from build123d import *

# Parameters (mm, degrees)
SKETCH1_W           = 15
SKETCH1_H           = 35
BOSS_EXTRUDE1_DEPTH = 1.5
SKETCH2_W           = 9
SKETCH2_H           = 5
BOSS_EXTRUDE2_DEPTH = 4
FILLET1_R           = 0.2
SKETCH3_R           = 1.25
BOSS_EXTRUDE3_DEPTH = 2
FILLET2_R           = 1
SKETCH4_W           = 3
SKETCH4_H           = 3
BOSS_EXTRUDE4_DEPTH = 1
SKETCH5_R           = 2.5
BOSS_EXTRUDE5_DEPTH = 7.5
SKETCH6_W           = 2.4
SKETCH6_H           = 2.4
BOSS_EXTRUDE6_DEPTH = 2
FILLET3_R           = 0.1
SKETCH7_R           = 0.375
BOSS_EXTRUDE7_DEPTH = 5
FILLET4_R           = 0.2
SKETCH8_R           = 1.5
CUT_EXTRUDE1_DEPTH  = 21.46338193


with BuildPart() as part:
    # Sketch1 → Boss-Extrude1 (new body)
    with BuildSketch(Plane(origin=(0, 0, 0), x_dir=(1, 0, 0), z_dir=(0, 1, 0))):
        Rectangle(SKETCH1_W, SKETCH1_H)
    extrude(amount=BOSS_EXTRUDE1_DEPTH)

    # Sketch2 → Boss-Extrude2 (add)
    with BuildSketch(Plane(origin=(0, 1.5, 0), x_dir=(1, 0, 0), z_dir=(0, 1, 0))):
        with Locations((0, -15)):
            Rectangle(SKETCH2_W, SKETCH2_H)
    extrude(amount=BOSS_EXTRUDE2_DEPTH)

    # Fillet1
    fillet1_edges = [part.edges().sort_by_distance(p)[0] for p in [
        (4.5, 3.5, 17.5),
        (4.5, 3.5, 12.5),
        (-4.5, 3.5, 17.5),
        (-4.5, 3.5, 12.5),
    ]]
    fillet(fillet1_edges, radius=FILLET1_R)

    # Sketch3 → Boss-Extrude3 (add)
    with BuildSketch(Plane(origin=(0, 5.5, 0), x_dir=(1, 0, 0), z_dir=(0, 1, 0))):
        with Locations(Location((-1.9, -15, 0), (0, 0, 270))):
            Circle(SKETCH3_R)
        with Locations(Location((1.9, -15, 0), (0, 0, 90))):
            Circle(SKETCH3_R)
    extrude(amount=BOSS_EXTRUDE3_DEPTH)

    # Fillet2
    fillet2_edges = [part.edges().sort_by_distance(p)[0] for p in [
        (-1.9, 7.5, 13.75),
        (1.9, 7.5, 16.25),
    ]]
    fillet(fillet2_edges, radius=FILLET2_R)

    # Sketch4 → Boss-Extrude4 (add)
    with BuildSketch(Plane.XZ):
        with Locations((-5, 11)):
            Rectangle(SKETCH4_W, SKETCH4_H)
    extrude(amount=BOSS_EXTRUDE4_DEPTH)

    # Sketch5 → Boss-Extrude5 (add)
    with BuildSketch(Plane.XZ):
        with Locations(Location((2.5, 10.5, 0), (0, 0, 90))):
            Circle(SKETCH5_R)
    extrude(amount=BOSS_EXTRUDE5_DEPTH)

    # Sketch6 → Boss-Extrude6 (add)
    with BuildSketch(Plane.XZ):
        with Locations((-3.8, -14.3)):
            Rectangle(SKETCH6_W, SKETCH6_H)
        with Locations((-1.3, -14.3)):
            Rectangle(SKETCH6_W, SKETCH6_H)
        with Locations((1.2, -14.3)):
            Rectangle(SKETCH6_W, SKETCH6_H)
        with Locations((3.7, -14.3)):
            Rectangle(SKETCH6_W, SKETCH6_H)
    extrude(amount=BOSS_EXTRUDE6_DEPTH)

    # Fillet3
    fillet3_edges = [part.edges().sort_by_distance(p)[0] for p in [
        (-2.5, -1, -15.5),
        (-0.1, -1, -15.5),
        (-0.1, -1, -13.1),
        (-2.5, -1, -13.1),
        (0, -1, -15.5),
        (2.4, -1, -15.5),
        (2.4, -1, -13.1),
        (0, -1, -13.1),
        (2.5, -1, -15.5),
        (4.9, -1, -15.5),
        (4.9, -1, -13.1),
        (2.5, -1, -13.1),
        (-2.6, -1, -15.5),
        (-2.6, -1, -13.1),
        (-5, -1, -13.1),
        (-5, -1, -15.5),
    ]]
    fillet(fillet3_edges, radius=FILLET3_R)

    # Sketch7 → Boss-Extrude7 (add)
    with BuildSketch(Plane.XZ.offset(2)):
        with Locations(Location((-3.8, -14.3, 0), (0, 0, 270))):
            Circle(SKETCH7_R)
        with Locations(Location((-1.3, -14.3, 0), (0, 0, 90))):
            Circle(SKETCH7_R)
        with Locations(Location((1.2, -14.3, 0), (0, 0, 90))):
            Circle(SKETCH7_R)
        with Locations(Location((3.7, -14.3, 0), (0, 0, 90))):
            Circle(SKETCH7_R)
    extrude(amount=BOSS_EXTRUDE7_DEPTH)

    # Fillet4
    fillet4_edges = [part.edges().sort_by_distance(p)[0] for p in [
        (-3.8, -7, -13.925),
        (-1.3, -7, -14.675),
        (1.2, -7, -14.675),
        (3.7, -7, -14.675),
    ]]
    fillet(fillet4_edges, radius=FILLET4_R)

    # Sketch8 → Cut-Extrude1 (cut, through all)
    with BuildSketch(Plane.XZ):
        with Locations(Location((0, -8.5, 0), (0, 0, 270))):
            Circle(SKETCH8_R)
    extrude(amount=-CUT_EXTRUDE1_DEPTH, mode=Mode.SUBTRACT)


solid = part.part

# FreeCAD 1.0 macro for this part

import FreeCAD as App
import Part
import Sketcher
Q = App.Units.Quantity


def edges_at(feature, points):
    """Names of the edges that pass closest to the given points."""
    edges = feature.Shape.Edges
    near = lambda p: min(range(len(edges)), key=lambda i: edges[i].distToShape(Part.Vertex(*p))[0])
    return sorted({f"Edge{near(p) + 1}" for p in points})

doc = App.newDocument("Part")
body = doc.addObject("PartDesign::Body", "Body")

# Sketch on XZ plane
sketch1 = doc.addObject("Sketcher::SketchObject", "Sketch")
body.addObject(sketch1)
sketch1.AttachmentSupport = (doc.XZ_Plane, [""])
sketch1.MapMode = "FlatFace"
sketch1.addGeometry([
    Part.LineSegment(App.Vector(-8, -18, 0), App.Vector(-8, 18, 0)),
    Part.LineSegment(App.Vector(-8, 18, 0), App.Vector(8, 18, 0)),
    Part.LineSegment(App.Vector(8, 18, 0), App.Vector(8, -18, 0)),
    Part.LineSegment(App.Vector(8, -18, 0), App.Vector(-8, -18, 0)),
], False)
sketch1.addConstraint([
    Sketcher.Constraint("Coincident", 0, 2, 1, 1),
    Sketcher.Constraint("Coincident", 1, 2, 2, 1),
    Sketcher.Constraint("Coincident", 2, 2, 3, 1),
    Sketcher.Constraint("Coincident", 3, 2, 0, 1),
    Sketcher.Constraint("Vertical", 0),
    Sketcher.Constraint("Horizontal", 1),
    Sketcher.Constraint("Vertical", 2),
    Sketcher.Constraint("Horizontal", 3),
    Sketcher.Constraint("Symmetric", 0, 2, 2, 2, -1, 1),
    Sketcher.Constraint("DistanceX", 1, 1, 1, 2, Q("15 mm")),
    Sketcher.Constraint("DistanceY", 0, 1, 0, 2, Q("35 mm")),
])
pad1 = doc.addObject("PartDesign::Pad", "Pad")
body.addObject(pad1)
pad1.Profile = sketch1
pad1.Length = 1.5
pad1.Reversed = True

# Sketch on XZ plane
sketch2 = doc.addObject("Sketcher::SketchObject", "Sketch001")
body.addObject(sketch2)
sketch2.AttachmentSupport = (doc.XZ_Plane, [""])
sketch2.MapMode = "FlatFace"
sketch2.AttachmentOffset = App.Placement(App.Vector(0, 0, -1.5), App.Rotation())
sketch2.addGeometry([
    Part.LineSegment(App.Vector(-4, 12, 0), App.Vector(-4, 18, 0)),
    Part.LineSegment(App.Vector(-4, 18, 0), App.Vector(4, 18, 0)),
    Part.LineSegment(App.Vector(4, 18, 0), App.Vector(4, 12, 0)),
    Part.LineSegment(App.Vector(4, 12, 0), App.Vector(-4, 12, 0)),
], False)
sketch2.addConstraint([
    Sketcher.Constraint("Coincident", 0, 2, 1, 1),
    Sketcher.Constraint("Coincident", 1, 2, 2, 1),
    Sketcher.Constraint("Coincident", 2, 2, 3, 1),
    Sketcher.Constraint("Coincident", 3, 2, 0, 1),
    Sketcher.Constraint("Vertical", 0),
    Sketcher.Constraint("Horizontal", 1),
    Sketcher.Constraint("Vertical", 2),
    Sketcher.Constraint("Horizontal", 3),
    Sketcher.Constraint("DistanceX", 1, 1, 1, 2, Q("9 mm")),
    Sketcher.Constraint("DistanceY", 0, 1, 0, 2, Q("5 mm")),
    Sketcher.Constraint("DistanceX", 0, 2, -1, 1, Q("4.5 mm")),
    Sketcher.Constraint("DistanceY", -1, 1, 0, 2, Q("17.5 mm")),
])
pad2 = doc.addObject("PartDesign::Pad", "Pad001")
body.addObject(pad2)
pad2.Profile = sketch2
pad2.Length = 4
pad2.Reversed = True
doc.recompute()

fillet = doc.addObject("PartDesign::Fillet", "Fillet")
body.addObject(fillet)
fillet.Base = (pad2, edges_at(pad2, [
    (4.5, 3.5, 17.5),
    (4.5, 3.5, 12.5),
    (-4.5, 3.5, 17.5),
    (-4.5, 3.5, 12.5),
]))
fillet.Radius = 0.2

# Sketch on XZ plane
sketch3 = doc.addObject("Sketcher::SketchObject", "Sketch002")
body.addObject(sketch3)
sketch3.AttachmentSupport = (doc.XZ_Plane, [""])
sketch3.MapMode = "FlatFace"
sketch3.AttachmentOffset = App.Placement(App.Vector(0, 0, -5.5), App.Rotation())
sketch3.addGeometry([
    Part.Circle(App.Vector(-1.9, 15, 0), App.Vector(0, 0, 1), 1.2),
    Part.Circle(App.Vector(1.9, 15, 0), App.Vector(0, 0, 1), 1.2),
], False)
sketch3.addConstraint([
    Sketcher.Constraint("Equal", 0, 1),
    Sketcher.Constraint("Symmetric", 0, 3, 1, 3, -2),
    Sketcher.Constraint("Diameter", 0, Q("2.5 mm")),
    Sketcher.Constraint("DistanceY", -1, 1, 0, 3, Q("15 mm")),
    Sketcher.Constraint("DistanceX", 0, 3, -1, 1, Q("1.9 mm")),
])
pad3 = doc.addObject("PartDesign::Pad", "Pad002")
body.addObject(pad3)
pad3.Profile = sketch3
pad3.Length = 2
pad3.Reversed = True
doc.recompute()

fillet2 = doc.addObject("PartDesign::Fillet", "Fillet001")
body.addObject(fillet2)
fillet2.Base = (pad3, edges_at(pad3, [(-1.9, 7.5, 13.75), (1.9, 7.5, 16.25)]))
fillet2.Radius = 1

# Sketch on XZ plane
sketch4 = doc.addObject("Sketcher::SketchObject", "Sketch003")
body.addObject(sketch4)
sketch4.AttachmentSupport = (doc.XZ_Plane, [""])
sketch4.MapMode = "FlatFace"
sketch4.addGeometry([
    Part.LineSegment(App.Vector(-6.5, 12.5, 0), App.Vector(-6.5, 9.5, 0)),
    Part.LineSegment(App.Vector(-6.5, 9.5, 0), App.Vector(-3.5, 9.5, 0)),
    Part.LineSegment(App.Vector(-3.5, 9.5, 0), App.Vector(-3.5, 12.5, 0)),
    Part.LineSegment(App.Vector(-3.5, 12.5, 0), App.Vector(-6.5, 12.5, 0)),
], False)
sketch4.addConstraint([
    Sketcher.Constraint("Coincident", 0, 2, 1, 1),
    Sketcher.Constraint("Coincident", 1, 2, 2, 1),
    Sketcher.Constraint("Coincident", 2, 2, 3, 1),
    Sketcher.Constraint("Coincident", 3, 2, 0, 1),
    Sketcher.Constraint("Vertical", 0),
    Sketcher.Constraint("Horizontal", 1),
    Sketcher.Constraint("Vertical", 2),
    Sketcher.Constraint("Horizontal", 3),
    Sketcher.Constraint("Equal", 3, 0),
    Sketcher.Constraint("DistanceX", 1, 1, 1, 2, Q("3 mm")),
    Sketcher.Constraint("DistanceX", 0, 2, -1, 1, Q("6.5 mm")),
    Sketcher.Constraint("DistanceY", -1, 1, 0, 2, Q("9.5 mm")),
])
pad4 = doc.addObject("PartDesign::Pad", "Pad003")
body.addObject(pad4)
pad4.Profile = sketch4
pad4.Length = 1

# Sketch on XZ plane
sketch5 = doc.addObject("Sketcher::SketchObject", "Sketch004")
body.addObject(sketch5)
sketch5.AttachmentSupport = (doc.XZ_Plane, [""])
sketch5.MapMode = "FlatFace"
sketch5.addGeometry(Part.Circle(App.Vector(2.5, 10.5, 0), App.Vector(0, 0, 1), 2.5), False)
sketch5.addConstraint([
    Sketcher.Constraint("Diameter", 0, Q("5 mm")),
    Sketcher.Constraint("DistanceX", -1, 1, 0, 3, Q("2.5 mm")),
    Sketcher.Constraint("DistanceY", -1, 1, 0, 3, Q("10.5 mm")),
])
pad5 = doc.addObject("PartDesign::Pad", "Pad004")
body.addObject(pad5)
pad5.Profile = sketch5
pad5.Length = 7.5

# Sketch on XZ plane
sketch6 = doc.addObject("Sketcher::SketchObject", "Sketch005")
body.addObject(sketch6)
sketch6.AttachmentSupport = (doc.XZ_Plane, [""])
sketch6.MapMode = "FlatFace"
sketch6.addGeometry([
    Part.LineSegment(App.Vector(-5, -13.1, 0), App.Vector(-5, -15.5, 0)),  # 0
    Part.LineSegment(App.Vector(-5, -15.5, 0), App.Vector(-2.6, -15.5, 0)),  # 1
    Part.LineSegment(App.Vector(-2.6, -15.5, 0), App.Vector(-2.6, -13.1, 0)),  # 2
    Part.LineSegment(App.Vector(-2.6, -13.1, 0), App.Vector(-5, -13.1, 0)),  # 3
    Part.LineSegment(App.Vector(-2.5, -13.1, 0), App.Vector(-2.5, -15.5, 0)),  # 4
    Part.LineSegment(App.Vector(-2.5, -15.5, 0), App.Vector(-0.1, -15.5, 0)),  # 5
    Part.LineSegment(App.Vector(-0.1, -15.5, 0), App.Vector(-0.1, -13.1, 0)),  # 6
    Part.LineSegment(App.Vector(-0.1, -13.1, 0), App.Vector(-2.5, -13.1, 0)),  # 7
    Part.LineSegment(App.Vector(0, -13.1, 0), App.Vector(0, -15.5, 0)),  # 8
    Part.LineSegment(App.Vector(0, -15.5, 0), App.Vector(2.4, -15.5, 0)),  # 9
    Part.LineSegment(App.Vector(2.4, -15.5, 0), App.Vector(2.4, -13.1, 0)),  # 10
    Part.LineSegment(App.Vector(2.4, -13.1, 0), App.Vector(0, -13.1, 0)),  # 11
    Part.LineSegment(App.Vector(2.5, -13.1, 0), App.Vector(2.5, -15.5, 0)),  # 12
    Part.LineSegment(App.Vector(2.5, -15.5, 0), App.Vector(4.9, -15.5, 0)),  # 13
    Part.LineSegment(App.Vector(4.9, -15.5, 0), App.Vector(4.9, -13.1, 0)),  # 14
    Part.LineSegment(App.Vector(4.9, -13.1, 0), App.Vector(2.5, -13.1, 0)),  # 15
], False)
sketch6.addConstraint([
    Sketcher.Constraint("Coincident", 0, 2, 1, 1),
    Sketcher.Constraint("Coincident", 1, 2, 2, 1),
    Sketcher.Constraint("Coincident", 2, 2, 3, 1),
    Sketcher.Constraint("Coincident", 3, 2, 0, 1),
    Sketcher.Constraint("Coincident", 4, 2, 5, 1),
    Sketcher.Constraint("Coincident", 5, 2, 6, 1),
    Sketcher.Constraint("Coincident", 6, 2, 7, 1),
    Sketcher.Constraint("Coincident", 7, 2, 4, 1),
    Sketcher.Constraint("Coincident", 8, 2, 9, 1),
    Sketcher.Constraint("Coincident", 9, 2, 10, 1),
    Sketcher.Constraint("Coincident", 10, 2, 11, 1),
    Sketcher.Constraint("Coincident", 11, 2, 8, 1),
    Sketcher.Constraint("Coincident", 12, 2, 13, 1),
    Sketcher.Constraint("Coincident", 13, 2, 14, 1),
    Sketcher.Constraint("Coincident", 14, 2, 15, 1),
    Sketcher.Constraint("Coincident", 15, 2, 12, 1),
    Sketcher.Constraint("Vertical", 0),
    Sketcher.Constraint("Horizontal", 1),
    Sketcher.Constraint("Vertical", 2),
    Sketcher.Constraint("Horizontal", 3),
    Sketcher.Constraint("Vertical", 4),
    Sketcher.Constraint("Horizontal", 5),
    Sketcher.Constraint("Vertical", 6),
    Sketcher.Constraint("Horizontal", 7),
    Sketcher.Constraint("Vertical", 8),
    Sketcher.Constraint("Horizontal", 9),
    Sketcher.Constraint("Vertical", 10),
    Sketcher.Constraint("Horizontal", 11),
    Sketcher.Constraint("Vertical", 12),
    Sketcher.Constraint("Horizontal", 13),
    Sketcher.Constraint("Vertical", 14),
    Sketcher.Constraint("Horizontal", 15),
    Sketcher.Constraint("Symmetric", 4, 2, 12, 2, -2),
    Sketcher.Constraint("PointOnObject", 8, 2, -2),
    Sketcher.Constraint("Horizontal", 1, 2, 4, 2),
    Sketcher.Constraint("Horizontal", 3, 2, 6, 2),
    Sketcher.Constraint("Horizontal", 5, 2, 8, 2),
    Sketcher.Constraint("Horizontal", 7, 2, 10, 2),
    Sketcher.Constraint("Horizontal", 11, 2, 14, 2),
    Sketcher.Constraint("Equal", 3, 5),
    Sketcher.Constraint("Equal", 7, 9),
    Sketcher.Constraint("Equal", 11, 13),
    Sketcher.Constraint("Equal", 15, 0),
    Sketcher.Constraint("DistanceX", 1, 1, 1, 2, Q("2.4 mm")),
    Sketcher.Constraint("DistanceX", 0, 2, -1, 1, Q("5 mm")),
    Sketcher.Constraint("DistanceX", 5, 2, 13, 2, Q("5 mm")),
    Sketcher.Constraint("DistanceY", 0, 2, -1, 1, Q("15.5 mm")),
])
pad6 = doc.addObject("PartDesign::Pad", "Pad005")
body.addObject(pad6)
pad6.Profile = sketch6
pad6.Length = 2
doc.recompute()

fillet3 = doc.addObject("PartDesign::Fillet", "Fillet002")
body.addObject(fillet3)
fillet3.Base = (pad6, edges_at(pad6, [
    (-2.5, -1, -15.5),
    (-0.1, -1, -15.5),
    (-0.1, -1, -13.1),
    (-2.5, -1, -13.1),
    (0, -1, -15.5),
    (2.4, -1, -15.5),
    (2.4, -1, -13.1),
    (0, -1, -13.1),
    (2.5, -1, -15.5),
    (4.9, -1, -15.5),
    (4.9, -1, -13.1),
    (2.5, -1, -13.1),
    (-2.6, -1, -15.5),
    (-2.6, -1, -13.1),
    (-5, -1, -13.1),
    (-5, -1, -15.5),
]))
fillet3.Radius = 0.1

# Sketch on XZ plane
sketch7 = doc.addObject("Sketcher::SketchObject", "Sketch006")
body.addObject(sketch7)
sketch7.AttachmentSupport = (doc.XZ_Plane, [""])
sketch7.MapMode = "FlatFace"
sketch7.AttachmentOffset = App.Placement(App.Vector(0, 0, 2), App.Rotation())
sketch7.addGeometry([
    Part.Circle(App.Vector(-3.8, -14.3, 0), App.Vector(0, 0, 1), 0.38),
    Part.Circle(App.Vector(-1.3, -14.3, 0), App.Vector(0, 0, 1), 0.38),
    Part.Circle(App.Vector(1.2, -14.3, 0), App.Vector(0, 0, 1), 0.38),
    Part.Circle(App.Vector(3.7, -14.3, 0), App.Vector(0, 0, 1), 0.38),
], False)
sketch7.addConstraint([
    Sketcher.Constraint("Equal", 0, 1),
    Sketcher.Constraint("Equal", 1, 2),
    Sketcher.Constraint("Equal", 2, 3),
    Sketcher.Constraint("Horizontal", 0, 3, 1, 3),
    Sketcher.Constraint("Horizontal", 1, 3, 2, 3),
    Sketcher.Constraint("Horizontal", 2, 3, 3, 3),
    Sketcher.Constraint("Diameter", 0, Q("0.75 mm")),
    Sketcher.Constraint("DistanceX", 0, 3, 2, 3, Q("5 mm")),
    Sketcher.Constraint("DistanceX", 1, 3, 3, 3, Q("5 mm")),
    Sketcher.Constraint("DistanceX", 0, 3, -1, 1, Q("3.8 mm")),
    Sketcher.Constraint("DistanceY", 0, 3, -1, 1, Q("14.3 mm")),
    Sketcher.Constraint("DistanceX", 1, 3, -1, 1, Q("1.3 mm")),
])
pad7 = doc.addObject("PartDesign::Pad", "Pad006")
body.addObject(pad7)
pad7.Profile = sketch7
pad7.Length = 5
doc.recompute()

fillet4 = doc.addObject("PartDesign::Fillet", "Fillet003")
body.addObject(fillet4)
fillet4.Base = (pad7, edges_at(pad7, [
    (-3.8, -7, -13.925),
    (-1.3, -7, -14.675),
    (1.2, -7, -14.675),
    (3.7, -7, -14.675),
]))
fillet4.Radius = 0.2

# Sketch on XZ plane
sketch8 = doc.addObject("Sketcher::SketchObject", "Sketch007")
body.addObject(sketch8)
sketch8.AttachmentSupport = (doc.XZ_Plane, [""])
sketch8.MapMode = "FlatFace"
sketch8.addGeometry(Part.Circle(App.Vector(0, -8.5, 0), App.Vector(0, 0, 1), 1.5), False)
sketch8.addConstraint([
    Sketcher.Constraint("PointOnObject", 0, 3, -2),
    Sketcher.Constraint("Diameter", 0, Q("3 mm")),
    Sketcher.Constraint("DistanceY", 0, 3, -1, 1, Q("8.5 mm")),
])
pocket1 = doc.addObject("PartDesign::Pocket", "Pocket")
body.addObject(pocket1)
pocket1.Profile = sketch8
pocket1.Type = "ThroughAll"

doc.recompute()
